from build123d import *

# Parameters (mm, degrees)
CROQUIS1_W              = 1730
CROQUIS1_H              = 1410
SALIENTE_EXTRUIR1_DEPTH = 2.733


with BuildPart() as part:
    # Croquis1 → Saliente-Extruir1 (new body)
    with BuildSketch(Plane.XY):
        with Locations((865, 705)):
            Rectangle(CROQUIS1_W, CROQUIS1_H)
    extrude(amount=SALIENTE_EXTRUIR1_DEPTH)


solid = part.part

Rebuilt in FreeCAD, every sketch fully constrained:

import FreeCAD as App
import Part
import Sketcher

V = App.Vector


def add_polygon(sketch, points):
    """Adds a closed chain of lines whose ends are joined by coincident constraints."""
    first, n = sketch.GeometryCount, len(points)
    for a, b in zip(points, points[1:] + points[:1]):
        sketch.addGeometry(Part.LineSegment(App.Vector(*a, 0), App.Vector(*b, 0)), False)
    for i in range(n):
        sketch.addConstraint(Sketcher.Constraint("Coincident", first + i, 2, first + (i + 1) % n, 1))

doc = App.newDocument("Part")
params = doc.addObject("Spreadsheet::Sheet", "Params")
for row, (alias, value) in enumerate([
    ("sketch1_width", "1730 mm"),
    ("sketch1_height", "1410 mm"),
    ("pad1_length", "2.733 mm"),
], start=1):
    params.set(f"A{row}", alias)
    params.set(f"B{row}", "=" + value)
    params.setAlias(f"B{row}", alias)

body = doc.addObject("PartDesign::Body", "Body")

sketch1 = body.newObject("Sketcher::SketchObject", "Sketch")
sketch1.AttachmentSupport = (doc.getObject("XY_Plane"), [""])
sketch1.MapMode = "FlatFace"
add_polygon(sketch1, [(0, 1410), (0, 0), (1730, 0), (1730, 1410)])
sketch1.addConstraint([
    Sketcher.Constraint("Vertical", 0),
    Sketcher.Constraint("Horizontal", 1),
    Sketcher.Constraint("Vertical", 2),
    Sketcher.Constraint("Horizontal", 3),
    Sketcher.Constraint("Coincident", 0, 2, -1, 1),
    Sketcher.Constraint("DistanceX", 1, 1, 1, 2, 1730.0),
    Sketcher.Constraint("DistanceY", 0, 2, 0, 1, 1410.0),
])
sketch1.setExpression("Constraints[9]", "Params.sketch1_width")
sketch1.setExpression("Constraints[10]", "Params.sketch1_height")
pad1 = body.newObject("PartDesign::Pad", "Pad")
pad1.Profile = sketch1
pad1.setExpression("Length", "Params.pad1_length")

doc.recompute()
